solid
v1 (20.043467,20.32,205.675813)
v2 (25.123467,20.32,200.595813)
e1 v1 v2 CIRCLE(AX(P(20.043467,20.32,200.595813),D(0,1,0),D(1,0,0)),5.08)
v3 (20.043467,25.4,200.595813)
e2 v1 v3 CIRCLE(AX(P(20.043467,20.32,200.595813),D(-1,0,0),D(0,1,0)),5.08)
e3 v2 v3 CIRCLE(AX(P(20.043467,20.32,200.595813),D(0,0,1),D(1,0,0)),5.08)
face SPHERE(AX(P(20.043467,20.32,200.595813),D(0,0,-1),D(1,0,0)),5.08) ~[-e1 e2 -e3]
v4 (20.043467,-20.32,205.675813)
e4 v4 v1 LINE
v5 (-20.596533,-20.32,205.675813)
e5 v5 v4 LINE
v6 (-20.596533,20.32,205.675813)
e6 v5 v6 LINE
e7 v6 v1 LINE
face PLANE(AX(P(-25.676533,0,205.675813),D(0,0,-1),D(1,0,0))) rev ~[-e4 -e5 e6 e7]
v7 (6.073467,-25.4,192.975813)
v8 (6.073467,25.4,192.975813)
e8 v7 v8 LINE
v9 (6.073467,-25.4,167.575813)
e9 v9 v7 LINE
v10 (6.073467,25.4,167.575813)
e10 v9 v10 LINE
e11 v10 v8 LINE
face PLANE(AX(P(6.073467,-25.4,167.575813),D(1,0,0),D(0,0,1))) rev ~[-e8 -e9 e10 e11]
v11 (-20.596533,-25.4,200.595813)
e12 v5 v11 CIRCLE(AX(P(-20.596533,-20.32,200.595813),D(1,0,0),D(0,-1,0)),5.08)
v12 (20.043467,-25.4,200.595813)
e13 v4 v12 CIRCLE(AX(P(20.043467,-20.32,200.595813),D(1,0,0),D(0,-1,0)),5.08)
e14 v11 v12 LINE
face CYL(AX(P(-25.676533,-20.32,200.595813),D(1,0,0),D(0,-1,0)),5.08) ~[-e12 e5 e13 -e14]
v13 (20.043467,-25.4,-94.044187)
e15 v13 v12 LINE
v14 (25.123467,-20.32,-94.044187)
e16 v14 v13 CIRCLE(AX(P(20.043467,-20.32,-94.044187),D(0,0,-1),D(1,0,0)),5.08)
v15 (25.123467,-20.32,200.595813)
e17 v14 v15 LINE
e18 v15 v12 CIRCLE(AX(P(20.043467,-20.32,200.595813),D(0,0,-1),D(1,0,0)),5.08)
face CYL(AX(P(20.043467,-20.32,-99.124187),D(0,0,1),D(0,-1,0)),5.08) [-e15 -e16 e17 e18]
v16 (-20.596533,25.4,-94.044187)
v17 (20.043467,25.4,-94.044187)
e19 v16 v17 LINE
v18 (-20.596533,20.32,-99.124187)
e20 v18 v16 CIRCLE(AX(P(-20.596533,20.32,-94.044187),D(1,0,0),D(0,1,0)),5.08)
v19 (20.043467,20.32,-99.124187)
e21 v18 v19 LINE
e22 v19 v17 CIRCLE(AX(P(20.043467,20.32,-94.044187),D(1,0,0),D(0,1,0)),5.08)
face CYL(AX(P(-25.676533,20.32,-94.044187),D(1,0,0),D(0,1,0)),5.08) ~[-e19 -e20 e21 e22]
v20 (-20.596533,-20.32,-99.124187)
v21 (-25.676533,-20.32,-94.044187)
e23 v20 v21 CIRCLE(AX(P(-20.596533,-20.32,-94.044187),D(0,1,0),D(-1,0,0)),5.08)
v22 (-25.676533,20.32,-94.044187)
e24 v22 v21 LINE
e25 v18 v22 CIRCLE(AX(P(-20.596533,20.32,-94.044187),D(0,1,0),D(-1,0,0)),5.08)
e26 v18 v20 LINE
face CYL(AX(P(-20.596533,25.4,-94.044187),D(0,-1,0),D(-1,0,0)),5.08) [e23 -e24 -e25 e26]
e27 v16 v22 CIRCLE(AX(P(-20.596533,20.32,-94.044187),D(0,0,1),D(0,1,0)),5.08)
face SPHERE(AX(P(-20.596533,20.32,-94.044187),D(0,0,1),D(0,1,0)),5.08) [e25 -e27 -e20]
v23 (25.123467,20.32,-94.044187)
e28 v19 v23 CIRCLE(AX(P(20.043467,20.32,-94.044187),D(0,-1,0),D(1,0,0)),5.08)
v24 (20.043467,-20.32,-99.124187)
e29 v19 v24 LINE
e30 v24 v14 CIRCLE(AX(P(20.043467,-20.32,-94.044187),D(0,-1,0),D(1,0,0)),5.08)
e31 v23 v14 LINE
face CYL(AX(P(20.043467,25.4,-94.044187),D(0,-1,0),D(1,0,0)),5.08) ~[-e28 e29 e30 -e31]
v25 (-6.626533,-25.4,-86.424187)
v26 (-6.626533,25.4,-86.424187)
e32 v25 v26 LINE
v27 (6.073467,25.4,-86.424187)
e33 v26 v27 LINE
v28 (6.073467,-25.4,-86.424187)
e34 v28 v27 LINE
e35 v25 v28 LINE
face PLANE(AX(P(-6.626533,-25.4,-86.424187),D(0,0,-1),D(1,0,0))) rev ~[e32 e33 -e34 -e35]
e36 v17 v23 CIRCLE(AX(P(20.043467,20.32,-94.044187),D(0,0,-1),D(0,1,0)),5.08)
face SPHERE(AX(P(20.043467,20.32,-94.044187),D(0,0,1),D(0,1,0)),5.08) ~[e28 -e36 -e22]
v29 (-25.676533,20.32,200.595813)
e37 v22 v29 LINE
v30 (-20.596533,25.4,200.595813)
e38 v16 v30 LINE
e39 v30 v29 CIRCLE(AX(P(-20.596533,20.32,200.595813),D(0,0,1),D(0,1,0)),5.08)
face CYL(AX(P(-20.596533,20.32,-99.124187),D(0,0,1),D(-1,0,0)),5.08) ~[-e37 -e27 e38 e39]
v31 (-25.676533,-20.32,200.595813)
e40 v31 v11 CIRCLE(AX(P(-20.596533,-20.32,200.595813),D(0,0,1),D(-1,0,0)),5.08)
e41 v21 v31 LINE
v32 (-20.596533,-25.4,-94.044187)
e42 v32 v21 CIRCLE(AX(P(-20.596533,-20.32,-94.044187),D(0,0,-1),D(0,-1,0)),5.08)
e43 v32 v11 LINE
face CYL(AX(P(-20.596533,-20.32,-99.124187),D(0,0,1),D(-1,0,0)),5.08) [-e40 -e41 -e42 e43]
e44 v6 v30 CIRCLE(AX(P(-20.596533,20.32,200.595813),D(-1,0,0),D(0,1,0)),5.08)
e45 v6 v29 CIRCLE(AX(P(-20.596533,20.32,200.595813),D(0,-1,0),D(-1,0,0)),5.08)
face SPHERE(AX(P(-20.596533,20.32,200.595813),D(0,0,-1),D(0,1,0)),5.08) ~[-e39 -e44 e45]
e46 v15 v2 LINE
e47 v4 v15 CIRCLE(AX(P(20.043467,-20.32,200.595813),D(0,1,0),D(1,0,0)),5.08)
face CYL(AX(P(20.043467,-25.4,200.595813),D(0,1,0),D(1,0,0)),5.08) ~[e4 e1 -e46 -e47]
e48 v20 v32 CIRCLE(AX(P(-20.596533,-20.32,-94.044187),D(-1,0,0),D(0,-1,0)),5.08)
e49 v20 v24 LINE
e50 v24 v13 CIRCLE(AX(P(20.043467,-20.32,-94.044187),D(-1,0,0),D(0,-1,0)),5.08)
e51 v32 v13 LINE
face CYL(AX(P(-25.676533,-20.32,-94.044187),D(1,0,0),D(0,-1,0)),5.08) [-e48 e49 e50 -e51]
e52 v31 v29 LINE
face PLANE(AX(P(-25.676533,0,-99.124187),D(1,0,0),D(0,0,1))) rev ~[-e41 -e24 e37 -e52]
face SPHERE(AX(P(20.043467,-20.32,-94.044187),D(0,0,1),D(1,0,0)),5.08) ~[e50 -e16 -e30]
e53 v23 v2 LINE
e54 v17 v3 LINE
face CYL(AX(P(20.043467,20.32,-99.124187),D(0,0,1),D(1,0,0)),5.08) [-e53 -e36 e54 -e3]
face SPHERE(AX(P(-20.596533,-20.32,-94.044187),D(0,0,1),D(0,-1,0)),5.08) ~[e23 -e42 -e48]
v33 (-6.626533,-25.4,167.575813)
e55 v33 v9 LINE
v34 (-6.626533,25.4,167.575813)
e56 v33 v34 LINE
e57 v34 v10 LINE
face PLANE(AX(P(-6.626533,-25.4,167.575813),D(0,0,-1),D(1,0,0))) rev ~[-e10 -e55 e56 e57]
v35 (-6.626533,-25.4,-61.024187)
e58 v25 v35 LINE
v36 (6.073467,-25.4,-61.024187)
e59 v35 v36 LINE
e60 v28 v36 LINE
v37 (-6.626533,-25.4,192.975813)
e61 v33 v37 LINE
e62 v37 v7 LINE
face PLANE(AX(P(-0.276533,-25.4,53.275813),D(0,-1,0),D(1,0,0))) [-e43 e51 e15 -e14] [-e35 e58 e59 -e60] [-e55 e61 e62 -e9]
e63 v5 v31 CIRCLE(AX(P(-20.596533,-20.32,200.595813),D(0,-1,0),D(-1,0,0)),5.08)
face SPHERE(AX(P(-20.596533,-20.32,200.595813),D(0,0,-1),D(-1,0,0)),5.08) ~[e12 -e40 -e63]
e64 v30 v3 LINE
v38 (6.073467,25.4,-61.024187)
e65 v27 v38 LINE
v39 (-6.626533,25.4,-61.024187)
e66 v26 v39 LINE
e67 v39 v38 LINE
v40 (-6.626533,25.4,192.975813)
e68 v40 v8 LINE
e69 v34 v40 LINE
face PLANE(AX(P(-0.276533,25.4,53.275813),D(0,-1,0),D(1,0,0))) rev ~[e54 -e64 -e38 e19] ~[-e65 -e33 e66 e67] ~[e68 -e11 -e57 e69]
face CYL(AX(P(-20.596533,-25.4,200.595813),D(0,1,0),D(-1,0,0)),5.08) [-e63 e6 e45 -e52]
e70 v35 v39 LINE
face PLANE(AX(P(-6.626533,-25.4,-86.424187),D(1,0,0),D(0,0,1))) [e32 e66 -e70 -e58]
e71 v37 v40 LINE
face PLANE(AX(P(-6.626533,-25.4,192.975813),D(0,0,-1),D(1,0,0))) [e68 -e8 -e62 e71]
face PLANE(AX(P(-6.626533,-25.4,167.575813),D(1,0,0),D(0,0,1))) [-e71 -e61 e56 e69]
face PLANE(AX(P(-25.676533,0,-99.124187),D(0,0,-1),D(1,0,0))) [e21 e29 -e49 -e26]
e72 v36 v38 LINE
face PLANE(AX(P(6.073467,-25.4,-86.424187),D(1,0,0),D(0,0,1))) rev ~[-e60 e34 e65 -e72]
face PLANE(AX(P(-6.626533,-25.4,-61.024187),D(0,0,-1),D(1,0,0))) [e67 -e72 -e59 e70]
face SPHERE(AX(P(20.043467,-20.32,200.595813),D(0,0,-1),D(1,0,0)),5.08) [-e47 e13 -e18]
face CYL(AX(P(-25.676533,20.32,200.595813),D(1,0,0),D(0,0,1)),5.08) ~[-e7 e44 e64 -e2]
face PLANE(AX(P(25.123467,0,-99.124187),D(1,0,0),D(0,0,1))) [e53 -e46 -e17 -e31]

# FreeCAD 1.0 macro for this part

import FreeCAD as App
import Part
import Sketcher
from FreeCAD import Vector
Q = App.Units.Quantity

doc = App.newDocument("Part")
body = doc.addObject("PartDesign::Body", "Body")

sketch1 = body.newObject("Sketcher::SketchObject", "Sketch")
sketch1.AttachmentSupport = (doc.getObject("XZ_Plane"), [""])
sketch1.MapMode = "FlatFace"
sketch1.addGeometry([
    Part.LineSegment(Vector(-25.676533, 205.675813, 0), Vector(-25.676533, -99.124187, 0)),
    Part.LineSegment(Vector(-25.676533, -99.124187, 0), Vector(25.123467, -99.124187, 0)),
    Part.LineSegment(Vector(25.123467, -99.124187, 0), Vector(25.123467, 205.675813, 0)),
    Part.LineSegment(Vector(25.123467, 205.675813, 0), Vector(-25.676533, 205.675813, 0)),
], False)
sketch1.addConstraint([
    Sketcher.Constraint("Coincident", 0, 2, 1, 1),
    Sketcher.Constraint("Coincident", 1, 2, 2, 1),
    Sketcher.Constraint("Coincident", 2, 2, 3, 1),
    Sketcher.Constraint("Coincident", 3, 2, 0, 1),
    Sketcher.Constraint("Vertical", 0),
    Sketcher.Constraint("Horizontal", 1),
    Sketcher.Constraint("Vertical", 2),
    Sketcher.Constraint("Horizontal", 3),
    Sketcher.Constraint("DistanceX", 1, 1, 1, 2, Q("2 in")),
    Sketcher.Constraint("DistanceY", 0, 2, 0, 1, Q("12 in")),
    Sketcher.Constraint("DistanceX", 0, 2, -1, 1, 25.676533),
    Sketcher.Constraint("DistanceY", 0, 2, -1, 1, 99.124187),
])
pad1 = body.newObject("PartDesign::Pad", "Pad")
pad1.Profile = sketch1
pad1.Length = Q("2 in")
pad1.Midplane = True
doc.recompute()

fillet = body.newObject("PartDesign::Fillet", "Fillet")
fillet.Base = (pad1, ["Edge1"])
fillet.UseAllEdges = True
fillet.Radius = Q("0.2 in")

sketch2 = body.newObject("Sketcher::SketchObject", "Sketch001")
sketch2.AttachmentSupport = (doc.getObject("XZ_Plane"), [""])
sketch2.MapMode = "FlatFace"
sketch2.AttachmentOffset = App.Placement(Vector(0, 0, 1 * 25.4), App.Rotation())
sketch2.addGeometry([
    Part.LineSegment(Vector(-6.626533, 192.975813, 0), Vector(-6.626533, 167.575813, 0)),
    Part.LineSegment(Vector(-6.626533, 167.575813, 0), Vector(6.073467, 167.575813, 0)),
    Part.LineSegment(Vector(6.073467, 167.575813, 0), Vector(6.073467, 192.975813, 0)),
    Part.LineSegment(Vector(6.073467, 192.975813, 0), Vector(-6.626533, 192.975813, 0)),
], False)
sketch2.addConstraint([
    Sketcher.Constraint("Coincident", 0, 2, 1, 1),
    Sketcher.Constraint("Coincident", 1, 2, 2, 1),
    Sketcher.Constraint("Coincident", 2, 2, 3, 1),
    Sketcher.Constraint("Coincident", 3, 2, 0, 1),
    Sketcher.Constraint("Vertical", 0),
    Sketcher.Constraint("Horizontal", 1),
    Sketcher.Constraint("Vertical", 2),
    Sketcher.Constraint("Horizontal", 3),
    Sketcher.Constraint("DistanceY", 0, 2, 0, 1, Q("1 in")),
    Sketcher.Constraint("DistanceX", 1, 1, 1, 2, Q("0.5 in")),
    Sketcher.Constraint("DistanceX", 0, 2, -1, 1, 6.626533),
    Sketcher.Constraint("DistanceY", -1, 1, 0, 2, 167.575813),
])
pocket1 = body.newObject("PartDesign::Pocket", "Pocket")
pocket1.Profile = sketch2
pocket1.Type = "ThroughAll"

sketch3 = body.newObject("Sketcher::SketchObject", "Sketch002")
sketch3.AttachmentSupport = (doc.getObject("XZ_Plane"), [""])
sketch3.MapMode = "FlatFace"
sketch3.AttachmentOffset = App.Placement(Vector(0, 0, 1 * 25.4), App.Rotation())
sketch3.addGeometry([
    Part.LineSegment(Vector(-6.626533, -61.024187, 0), Vector(-6.626533, -86.424187, 0)),
    Part.LineSegment(Vector(-6.626533, -86.424187, 0), Vector(6.073467, -86.424187, 0)),
    Part.LineSegment(Vector(6.073467, -86.424187, 0), Vector(6.073467, -61.024187, 0)),
    Part.LineSegment(Vector(6.073467, -61.024187, 0), Vector(-6.626533, -61.024187, 0)),
], False)
sketch3.addConstraint([
    Sketcher.Constraint("Coincident", 0, 2, 1, 1),
    Sketcher.Constraint("Coincident", 1, 2, 2, 1),
    Sketcher.Constraint("Coincident", 2, 2, 3, 1),
    Sketcher.Constraint("Coincident", 3, 2, 0, 1),
    Sketcher.Constraint("Vertical", 0),
    Sketcher.Constraint("Horizontal", 1),
    Sketcher.Constraint("Vertical", 2),
    Sketcher.Constraint("Horizontal", 3),
    Sketcher.Constraint("DistanceY", 0, 2, 0, 1, Q("1 in")),
    Sketcher.Constraint("DistanceX", 1, 1, 1, 2, Q("0.5 in")),
    Sketcher.Constraint("DistanceX", 0, 2, -1, 1, 6.626533),
    Sketcher.Constraint("DistanceY", 0, 2, -1, 1, 86.424187),
])
pocket2 = body.newObject("PartDesign::Pocket", "Pocket001")
pocket2.Profile = sketch3
pocket2.Type = "ThroughAll"

doc.recompute()
